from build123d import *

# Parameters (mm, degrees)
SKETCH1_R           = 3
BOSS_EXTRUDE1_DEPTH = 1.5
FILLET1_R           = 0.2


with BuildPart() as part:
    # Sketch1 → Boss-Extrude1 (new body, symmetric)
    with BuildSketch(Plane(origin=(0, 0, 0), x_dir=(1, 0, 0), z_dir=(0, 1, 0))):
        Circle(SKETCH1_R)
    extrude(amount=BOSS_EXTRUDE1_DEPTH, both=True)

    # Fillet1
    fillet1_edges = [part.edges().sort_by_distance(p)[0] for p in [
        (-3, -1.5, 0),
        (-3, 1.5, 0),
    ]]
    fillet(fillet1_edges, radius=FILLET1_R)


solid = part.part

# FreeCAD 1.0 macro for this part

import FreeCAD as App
import Part
import Sketcher

V = App.Vector
Q = App.Units.Quantity


def edges_at(feature, points):
    """Names of the edges that pass closest to the given points."""
    edges = feature.Shape.Edges
    near = lambda p: min(range(len(edges)), key=lambda i: edges[i].distToShape(Part.Vertex(*p))[0])
    return sorted({f"Edge{near(p) + 1}" for p in points})

doc = App.newDocument("Part")
body = doc.addObject("PartDesign::Body", "Body")

# Sketch on XZ plane
sketch1 = doc.addObject("Sketcher::SketchObject", "Sketch")
body.addObject(sketch1)
sketch1.AttachmentSupport = (doc.XZ_Plane, [""])
sketch1.MapMode = "FlatFace"
sketch1.addGeometry(Part.Circle(V(0, 0, 0), V(0, 0, 1), 3), False)
sketch1.addConstraint([
    Sketcher.Constraint("Coincident", 0, 3, -1, 1),
    Sketcher.Constraint("Diameter", 0, Q("6 mm")),
])
pad1 = doc.addObject("PartDesign::Pad", "Pad")
body.addObject(pad1)
pad1.Profile = sketch1
pad1.Length = 3
pad1.Midplane = True
doc.recompute()

fillet = doc.addObject("PartDesign::Fillet", "Fillet")
body.addObject(fillet)
fillet.Base = (pad1, edges_at(pad1, [(-3, -1.5, 0), (-3, 1.5, 0)]))
fillet.Radius = 0.2

doc.recompute()
